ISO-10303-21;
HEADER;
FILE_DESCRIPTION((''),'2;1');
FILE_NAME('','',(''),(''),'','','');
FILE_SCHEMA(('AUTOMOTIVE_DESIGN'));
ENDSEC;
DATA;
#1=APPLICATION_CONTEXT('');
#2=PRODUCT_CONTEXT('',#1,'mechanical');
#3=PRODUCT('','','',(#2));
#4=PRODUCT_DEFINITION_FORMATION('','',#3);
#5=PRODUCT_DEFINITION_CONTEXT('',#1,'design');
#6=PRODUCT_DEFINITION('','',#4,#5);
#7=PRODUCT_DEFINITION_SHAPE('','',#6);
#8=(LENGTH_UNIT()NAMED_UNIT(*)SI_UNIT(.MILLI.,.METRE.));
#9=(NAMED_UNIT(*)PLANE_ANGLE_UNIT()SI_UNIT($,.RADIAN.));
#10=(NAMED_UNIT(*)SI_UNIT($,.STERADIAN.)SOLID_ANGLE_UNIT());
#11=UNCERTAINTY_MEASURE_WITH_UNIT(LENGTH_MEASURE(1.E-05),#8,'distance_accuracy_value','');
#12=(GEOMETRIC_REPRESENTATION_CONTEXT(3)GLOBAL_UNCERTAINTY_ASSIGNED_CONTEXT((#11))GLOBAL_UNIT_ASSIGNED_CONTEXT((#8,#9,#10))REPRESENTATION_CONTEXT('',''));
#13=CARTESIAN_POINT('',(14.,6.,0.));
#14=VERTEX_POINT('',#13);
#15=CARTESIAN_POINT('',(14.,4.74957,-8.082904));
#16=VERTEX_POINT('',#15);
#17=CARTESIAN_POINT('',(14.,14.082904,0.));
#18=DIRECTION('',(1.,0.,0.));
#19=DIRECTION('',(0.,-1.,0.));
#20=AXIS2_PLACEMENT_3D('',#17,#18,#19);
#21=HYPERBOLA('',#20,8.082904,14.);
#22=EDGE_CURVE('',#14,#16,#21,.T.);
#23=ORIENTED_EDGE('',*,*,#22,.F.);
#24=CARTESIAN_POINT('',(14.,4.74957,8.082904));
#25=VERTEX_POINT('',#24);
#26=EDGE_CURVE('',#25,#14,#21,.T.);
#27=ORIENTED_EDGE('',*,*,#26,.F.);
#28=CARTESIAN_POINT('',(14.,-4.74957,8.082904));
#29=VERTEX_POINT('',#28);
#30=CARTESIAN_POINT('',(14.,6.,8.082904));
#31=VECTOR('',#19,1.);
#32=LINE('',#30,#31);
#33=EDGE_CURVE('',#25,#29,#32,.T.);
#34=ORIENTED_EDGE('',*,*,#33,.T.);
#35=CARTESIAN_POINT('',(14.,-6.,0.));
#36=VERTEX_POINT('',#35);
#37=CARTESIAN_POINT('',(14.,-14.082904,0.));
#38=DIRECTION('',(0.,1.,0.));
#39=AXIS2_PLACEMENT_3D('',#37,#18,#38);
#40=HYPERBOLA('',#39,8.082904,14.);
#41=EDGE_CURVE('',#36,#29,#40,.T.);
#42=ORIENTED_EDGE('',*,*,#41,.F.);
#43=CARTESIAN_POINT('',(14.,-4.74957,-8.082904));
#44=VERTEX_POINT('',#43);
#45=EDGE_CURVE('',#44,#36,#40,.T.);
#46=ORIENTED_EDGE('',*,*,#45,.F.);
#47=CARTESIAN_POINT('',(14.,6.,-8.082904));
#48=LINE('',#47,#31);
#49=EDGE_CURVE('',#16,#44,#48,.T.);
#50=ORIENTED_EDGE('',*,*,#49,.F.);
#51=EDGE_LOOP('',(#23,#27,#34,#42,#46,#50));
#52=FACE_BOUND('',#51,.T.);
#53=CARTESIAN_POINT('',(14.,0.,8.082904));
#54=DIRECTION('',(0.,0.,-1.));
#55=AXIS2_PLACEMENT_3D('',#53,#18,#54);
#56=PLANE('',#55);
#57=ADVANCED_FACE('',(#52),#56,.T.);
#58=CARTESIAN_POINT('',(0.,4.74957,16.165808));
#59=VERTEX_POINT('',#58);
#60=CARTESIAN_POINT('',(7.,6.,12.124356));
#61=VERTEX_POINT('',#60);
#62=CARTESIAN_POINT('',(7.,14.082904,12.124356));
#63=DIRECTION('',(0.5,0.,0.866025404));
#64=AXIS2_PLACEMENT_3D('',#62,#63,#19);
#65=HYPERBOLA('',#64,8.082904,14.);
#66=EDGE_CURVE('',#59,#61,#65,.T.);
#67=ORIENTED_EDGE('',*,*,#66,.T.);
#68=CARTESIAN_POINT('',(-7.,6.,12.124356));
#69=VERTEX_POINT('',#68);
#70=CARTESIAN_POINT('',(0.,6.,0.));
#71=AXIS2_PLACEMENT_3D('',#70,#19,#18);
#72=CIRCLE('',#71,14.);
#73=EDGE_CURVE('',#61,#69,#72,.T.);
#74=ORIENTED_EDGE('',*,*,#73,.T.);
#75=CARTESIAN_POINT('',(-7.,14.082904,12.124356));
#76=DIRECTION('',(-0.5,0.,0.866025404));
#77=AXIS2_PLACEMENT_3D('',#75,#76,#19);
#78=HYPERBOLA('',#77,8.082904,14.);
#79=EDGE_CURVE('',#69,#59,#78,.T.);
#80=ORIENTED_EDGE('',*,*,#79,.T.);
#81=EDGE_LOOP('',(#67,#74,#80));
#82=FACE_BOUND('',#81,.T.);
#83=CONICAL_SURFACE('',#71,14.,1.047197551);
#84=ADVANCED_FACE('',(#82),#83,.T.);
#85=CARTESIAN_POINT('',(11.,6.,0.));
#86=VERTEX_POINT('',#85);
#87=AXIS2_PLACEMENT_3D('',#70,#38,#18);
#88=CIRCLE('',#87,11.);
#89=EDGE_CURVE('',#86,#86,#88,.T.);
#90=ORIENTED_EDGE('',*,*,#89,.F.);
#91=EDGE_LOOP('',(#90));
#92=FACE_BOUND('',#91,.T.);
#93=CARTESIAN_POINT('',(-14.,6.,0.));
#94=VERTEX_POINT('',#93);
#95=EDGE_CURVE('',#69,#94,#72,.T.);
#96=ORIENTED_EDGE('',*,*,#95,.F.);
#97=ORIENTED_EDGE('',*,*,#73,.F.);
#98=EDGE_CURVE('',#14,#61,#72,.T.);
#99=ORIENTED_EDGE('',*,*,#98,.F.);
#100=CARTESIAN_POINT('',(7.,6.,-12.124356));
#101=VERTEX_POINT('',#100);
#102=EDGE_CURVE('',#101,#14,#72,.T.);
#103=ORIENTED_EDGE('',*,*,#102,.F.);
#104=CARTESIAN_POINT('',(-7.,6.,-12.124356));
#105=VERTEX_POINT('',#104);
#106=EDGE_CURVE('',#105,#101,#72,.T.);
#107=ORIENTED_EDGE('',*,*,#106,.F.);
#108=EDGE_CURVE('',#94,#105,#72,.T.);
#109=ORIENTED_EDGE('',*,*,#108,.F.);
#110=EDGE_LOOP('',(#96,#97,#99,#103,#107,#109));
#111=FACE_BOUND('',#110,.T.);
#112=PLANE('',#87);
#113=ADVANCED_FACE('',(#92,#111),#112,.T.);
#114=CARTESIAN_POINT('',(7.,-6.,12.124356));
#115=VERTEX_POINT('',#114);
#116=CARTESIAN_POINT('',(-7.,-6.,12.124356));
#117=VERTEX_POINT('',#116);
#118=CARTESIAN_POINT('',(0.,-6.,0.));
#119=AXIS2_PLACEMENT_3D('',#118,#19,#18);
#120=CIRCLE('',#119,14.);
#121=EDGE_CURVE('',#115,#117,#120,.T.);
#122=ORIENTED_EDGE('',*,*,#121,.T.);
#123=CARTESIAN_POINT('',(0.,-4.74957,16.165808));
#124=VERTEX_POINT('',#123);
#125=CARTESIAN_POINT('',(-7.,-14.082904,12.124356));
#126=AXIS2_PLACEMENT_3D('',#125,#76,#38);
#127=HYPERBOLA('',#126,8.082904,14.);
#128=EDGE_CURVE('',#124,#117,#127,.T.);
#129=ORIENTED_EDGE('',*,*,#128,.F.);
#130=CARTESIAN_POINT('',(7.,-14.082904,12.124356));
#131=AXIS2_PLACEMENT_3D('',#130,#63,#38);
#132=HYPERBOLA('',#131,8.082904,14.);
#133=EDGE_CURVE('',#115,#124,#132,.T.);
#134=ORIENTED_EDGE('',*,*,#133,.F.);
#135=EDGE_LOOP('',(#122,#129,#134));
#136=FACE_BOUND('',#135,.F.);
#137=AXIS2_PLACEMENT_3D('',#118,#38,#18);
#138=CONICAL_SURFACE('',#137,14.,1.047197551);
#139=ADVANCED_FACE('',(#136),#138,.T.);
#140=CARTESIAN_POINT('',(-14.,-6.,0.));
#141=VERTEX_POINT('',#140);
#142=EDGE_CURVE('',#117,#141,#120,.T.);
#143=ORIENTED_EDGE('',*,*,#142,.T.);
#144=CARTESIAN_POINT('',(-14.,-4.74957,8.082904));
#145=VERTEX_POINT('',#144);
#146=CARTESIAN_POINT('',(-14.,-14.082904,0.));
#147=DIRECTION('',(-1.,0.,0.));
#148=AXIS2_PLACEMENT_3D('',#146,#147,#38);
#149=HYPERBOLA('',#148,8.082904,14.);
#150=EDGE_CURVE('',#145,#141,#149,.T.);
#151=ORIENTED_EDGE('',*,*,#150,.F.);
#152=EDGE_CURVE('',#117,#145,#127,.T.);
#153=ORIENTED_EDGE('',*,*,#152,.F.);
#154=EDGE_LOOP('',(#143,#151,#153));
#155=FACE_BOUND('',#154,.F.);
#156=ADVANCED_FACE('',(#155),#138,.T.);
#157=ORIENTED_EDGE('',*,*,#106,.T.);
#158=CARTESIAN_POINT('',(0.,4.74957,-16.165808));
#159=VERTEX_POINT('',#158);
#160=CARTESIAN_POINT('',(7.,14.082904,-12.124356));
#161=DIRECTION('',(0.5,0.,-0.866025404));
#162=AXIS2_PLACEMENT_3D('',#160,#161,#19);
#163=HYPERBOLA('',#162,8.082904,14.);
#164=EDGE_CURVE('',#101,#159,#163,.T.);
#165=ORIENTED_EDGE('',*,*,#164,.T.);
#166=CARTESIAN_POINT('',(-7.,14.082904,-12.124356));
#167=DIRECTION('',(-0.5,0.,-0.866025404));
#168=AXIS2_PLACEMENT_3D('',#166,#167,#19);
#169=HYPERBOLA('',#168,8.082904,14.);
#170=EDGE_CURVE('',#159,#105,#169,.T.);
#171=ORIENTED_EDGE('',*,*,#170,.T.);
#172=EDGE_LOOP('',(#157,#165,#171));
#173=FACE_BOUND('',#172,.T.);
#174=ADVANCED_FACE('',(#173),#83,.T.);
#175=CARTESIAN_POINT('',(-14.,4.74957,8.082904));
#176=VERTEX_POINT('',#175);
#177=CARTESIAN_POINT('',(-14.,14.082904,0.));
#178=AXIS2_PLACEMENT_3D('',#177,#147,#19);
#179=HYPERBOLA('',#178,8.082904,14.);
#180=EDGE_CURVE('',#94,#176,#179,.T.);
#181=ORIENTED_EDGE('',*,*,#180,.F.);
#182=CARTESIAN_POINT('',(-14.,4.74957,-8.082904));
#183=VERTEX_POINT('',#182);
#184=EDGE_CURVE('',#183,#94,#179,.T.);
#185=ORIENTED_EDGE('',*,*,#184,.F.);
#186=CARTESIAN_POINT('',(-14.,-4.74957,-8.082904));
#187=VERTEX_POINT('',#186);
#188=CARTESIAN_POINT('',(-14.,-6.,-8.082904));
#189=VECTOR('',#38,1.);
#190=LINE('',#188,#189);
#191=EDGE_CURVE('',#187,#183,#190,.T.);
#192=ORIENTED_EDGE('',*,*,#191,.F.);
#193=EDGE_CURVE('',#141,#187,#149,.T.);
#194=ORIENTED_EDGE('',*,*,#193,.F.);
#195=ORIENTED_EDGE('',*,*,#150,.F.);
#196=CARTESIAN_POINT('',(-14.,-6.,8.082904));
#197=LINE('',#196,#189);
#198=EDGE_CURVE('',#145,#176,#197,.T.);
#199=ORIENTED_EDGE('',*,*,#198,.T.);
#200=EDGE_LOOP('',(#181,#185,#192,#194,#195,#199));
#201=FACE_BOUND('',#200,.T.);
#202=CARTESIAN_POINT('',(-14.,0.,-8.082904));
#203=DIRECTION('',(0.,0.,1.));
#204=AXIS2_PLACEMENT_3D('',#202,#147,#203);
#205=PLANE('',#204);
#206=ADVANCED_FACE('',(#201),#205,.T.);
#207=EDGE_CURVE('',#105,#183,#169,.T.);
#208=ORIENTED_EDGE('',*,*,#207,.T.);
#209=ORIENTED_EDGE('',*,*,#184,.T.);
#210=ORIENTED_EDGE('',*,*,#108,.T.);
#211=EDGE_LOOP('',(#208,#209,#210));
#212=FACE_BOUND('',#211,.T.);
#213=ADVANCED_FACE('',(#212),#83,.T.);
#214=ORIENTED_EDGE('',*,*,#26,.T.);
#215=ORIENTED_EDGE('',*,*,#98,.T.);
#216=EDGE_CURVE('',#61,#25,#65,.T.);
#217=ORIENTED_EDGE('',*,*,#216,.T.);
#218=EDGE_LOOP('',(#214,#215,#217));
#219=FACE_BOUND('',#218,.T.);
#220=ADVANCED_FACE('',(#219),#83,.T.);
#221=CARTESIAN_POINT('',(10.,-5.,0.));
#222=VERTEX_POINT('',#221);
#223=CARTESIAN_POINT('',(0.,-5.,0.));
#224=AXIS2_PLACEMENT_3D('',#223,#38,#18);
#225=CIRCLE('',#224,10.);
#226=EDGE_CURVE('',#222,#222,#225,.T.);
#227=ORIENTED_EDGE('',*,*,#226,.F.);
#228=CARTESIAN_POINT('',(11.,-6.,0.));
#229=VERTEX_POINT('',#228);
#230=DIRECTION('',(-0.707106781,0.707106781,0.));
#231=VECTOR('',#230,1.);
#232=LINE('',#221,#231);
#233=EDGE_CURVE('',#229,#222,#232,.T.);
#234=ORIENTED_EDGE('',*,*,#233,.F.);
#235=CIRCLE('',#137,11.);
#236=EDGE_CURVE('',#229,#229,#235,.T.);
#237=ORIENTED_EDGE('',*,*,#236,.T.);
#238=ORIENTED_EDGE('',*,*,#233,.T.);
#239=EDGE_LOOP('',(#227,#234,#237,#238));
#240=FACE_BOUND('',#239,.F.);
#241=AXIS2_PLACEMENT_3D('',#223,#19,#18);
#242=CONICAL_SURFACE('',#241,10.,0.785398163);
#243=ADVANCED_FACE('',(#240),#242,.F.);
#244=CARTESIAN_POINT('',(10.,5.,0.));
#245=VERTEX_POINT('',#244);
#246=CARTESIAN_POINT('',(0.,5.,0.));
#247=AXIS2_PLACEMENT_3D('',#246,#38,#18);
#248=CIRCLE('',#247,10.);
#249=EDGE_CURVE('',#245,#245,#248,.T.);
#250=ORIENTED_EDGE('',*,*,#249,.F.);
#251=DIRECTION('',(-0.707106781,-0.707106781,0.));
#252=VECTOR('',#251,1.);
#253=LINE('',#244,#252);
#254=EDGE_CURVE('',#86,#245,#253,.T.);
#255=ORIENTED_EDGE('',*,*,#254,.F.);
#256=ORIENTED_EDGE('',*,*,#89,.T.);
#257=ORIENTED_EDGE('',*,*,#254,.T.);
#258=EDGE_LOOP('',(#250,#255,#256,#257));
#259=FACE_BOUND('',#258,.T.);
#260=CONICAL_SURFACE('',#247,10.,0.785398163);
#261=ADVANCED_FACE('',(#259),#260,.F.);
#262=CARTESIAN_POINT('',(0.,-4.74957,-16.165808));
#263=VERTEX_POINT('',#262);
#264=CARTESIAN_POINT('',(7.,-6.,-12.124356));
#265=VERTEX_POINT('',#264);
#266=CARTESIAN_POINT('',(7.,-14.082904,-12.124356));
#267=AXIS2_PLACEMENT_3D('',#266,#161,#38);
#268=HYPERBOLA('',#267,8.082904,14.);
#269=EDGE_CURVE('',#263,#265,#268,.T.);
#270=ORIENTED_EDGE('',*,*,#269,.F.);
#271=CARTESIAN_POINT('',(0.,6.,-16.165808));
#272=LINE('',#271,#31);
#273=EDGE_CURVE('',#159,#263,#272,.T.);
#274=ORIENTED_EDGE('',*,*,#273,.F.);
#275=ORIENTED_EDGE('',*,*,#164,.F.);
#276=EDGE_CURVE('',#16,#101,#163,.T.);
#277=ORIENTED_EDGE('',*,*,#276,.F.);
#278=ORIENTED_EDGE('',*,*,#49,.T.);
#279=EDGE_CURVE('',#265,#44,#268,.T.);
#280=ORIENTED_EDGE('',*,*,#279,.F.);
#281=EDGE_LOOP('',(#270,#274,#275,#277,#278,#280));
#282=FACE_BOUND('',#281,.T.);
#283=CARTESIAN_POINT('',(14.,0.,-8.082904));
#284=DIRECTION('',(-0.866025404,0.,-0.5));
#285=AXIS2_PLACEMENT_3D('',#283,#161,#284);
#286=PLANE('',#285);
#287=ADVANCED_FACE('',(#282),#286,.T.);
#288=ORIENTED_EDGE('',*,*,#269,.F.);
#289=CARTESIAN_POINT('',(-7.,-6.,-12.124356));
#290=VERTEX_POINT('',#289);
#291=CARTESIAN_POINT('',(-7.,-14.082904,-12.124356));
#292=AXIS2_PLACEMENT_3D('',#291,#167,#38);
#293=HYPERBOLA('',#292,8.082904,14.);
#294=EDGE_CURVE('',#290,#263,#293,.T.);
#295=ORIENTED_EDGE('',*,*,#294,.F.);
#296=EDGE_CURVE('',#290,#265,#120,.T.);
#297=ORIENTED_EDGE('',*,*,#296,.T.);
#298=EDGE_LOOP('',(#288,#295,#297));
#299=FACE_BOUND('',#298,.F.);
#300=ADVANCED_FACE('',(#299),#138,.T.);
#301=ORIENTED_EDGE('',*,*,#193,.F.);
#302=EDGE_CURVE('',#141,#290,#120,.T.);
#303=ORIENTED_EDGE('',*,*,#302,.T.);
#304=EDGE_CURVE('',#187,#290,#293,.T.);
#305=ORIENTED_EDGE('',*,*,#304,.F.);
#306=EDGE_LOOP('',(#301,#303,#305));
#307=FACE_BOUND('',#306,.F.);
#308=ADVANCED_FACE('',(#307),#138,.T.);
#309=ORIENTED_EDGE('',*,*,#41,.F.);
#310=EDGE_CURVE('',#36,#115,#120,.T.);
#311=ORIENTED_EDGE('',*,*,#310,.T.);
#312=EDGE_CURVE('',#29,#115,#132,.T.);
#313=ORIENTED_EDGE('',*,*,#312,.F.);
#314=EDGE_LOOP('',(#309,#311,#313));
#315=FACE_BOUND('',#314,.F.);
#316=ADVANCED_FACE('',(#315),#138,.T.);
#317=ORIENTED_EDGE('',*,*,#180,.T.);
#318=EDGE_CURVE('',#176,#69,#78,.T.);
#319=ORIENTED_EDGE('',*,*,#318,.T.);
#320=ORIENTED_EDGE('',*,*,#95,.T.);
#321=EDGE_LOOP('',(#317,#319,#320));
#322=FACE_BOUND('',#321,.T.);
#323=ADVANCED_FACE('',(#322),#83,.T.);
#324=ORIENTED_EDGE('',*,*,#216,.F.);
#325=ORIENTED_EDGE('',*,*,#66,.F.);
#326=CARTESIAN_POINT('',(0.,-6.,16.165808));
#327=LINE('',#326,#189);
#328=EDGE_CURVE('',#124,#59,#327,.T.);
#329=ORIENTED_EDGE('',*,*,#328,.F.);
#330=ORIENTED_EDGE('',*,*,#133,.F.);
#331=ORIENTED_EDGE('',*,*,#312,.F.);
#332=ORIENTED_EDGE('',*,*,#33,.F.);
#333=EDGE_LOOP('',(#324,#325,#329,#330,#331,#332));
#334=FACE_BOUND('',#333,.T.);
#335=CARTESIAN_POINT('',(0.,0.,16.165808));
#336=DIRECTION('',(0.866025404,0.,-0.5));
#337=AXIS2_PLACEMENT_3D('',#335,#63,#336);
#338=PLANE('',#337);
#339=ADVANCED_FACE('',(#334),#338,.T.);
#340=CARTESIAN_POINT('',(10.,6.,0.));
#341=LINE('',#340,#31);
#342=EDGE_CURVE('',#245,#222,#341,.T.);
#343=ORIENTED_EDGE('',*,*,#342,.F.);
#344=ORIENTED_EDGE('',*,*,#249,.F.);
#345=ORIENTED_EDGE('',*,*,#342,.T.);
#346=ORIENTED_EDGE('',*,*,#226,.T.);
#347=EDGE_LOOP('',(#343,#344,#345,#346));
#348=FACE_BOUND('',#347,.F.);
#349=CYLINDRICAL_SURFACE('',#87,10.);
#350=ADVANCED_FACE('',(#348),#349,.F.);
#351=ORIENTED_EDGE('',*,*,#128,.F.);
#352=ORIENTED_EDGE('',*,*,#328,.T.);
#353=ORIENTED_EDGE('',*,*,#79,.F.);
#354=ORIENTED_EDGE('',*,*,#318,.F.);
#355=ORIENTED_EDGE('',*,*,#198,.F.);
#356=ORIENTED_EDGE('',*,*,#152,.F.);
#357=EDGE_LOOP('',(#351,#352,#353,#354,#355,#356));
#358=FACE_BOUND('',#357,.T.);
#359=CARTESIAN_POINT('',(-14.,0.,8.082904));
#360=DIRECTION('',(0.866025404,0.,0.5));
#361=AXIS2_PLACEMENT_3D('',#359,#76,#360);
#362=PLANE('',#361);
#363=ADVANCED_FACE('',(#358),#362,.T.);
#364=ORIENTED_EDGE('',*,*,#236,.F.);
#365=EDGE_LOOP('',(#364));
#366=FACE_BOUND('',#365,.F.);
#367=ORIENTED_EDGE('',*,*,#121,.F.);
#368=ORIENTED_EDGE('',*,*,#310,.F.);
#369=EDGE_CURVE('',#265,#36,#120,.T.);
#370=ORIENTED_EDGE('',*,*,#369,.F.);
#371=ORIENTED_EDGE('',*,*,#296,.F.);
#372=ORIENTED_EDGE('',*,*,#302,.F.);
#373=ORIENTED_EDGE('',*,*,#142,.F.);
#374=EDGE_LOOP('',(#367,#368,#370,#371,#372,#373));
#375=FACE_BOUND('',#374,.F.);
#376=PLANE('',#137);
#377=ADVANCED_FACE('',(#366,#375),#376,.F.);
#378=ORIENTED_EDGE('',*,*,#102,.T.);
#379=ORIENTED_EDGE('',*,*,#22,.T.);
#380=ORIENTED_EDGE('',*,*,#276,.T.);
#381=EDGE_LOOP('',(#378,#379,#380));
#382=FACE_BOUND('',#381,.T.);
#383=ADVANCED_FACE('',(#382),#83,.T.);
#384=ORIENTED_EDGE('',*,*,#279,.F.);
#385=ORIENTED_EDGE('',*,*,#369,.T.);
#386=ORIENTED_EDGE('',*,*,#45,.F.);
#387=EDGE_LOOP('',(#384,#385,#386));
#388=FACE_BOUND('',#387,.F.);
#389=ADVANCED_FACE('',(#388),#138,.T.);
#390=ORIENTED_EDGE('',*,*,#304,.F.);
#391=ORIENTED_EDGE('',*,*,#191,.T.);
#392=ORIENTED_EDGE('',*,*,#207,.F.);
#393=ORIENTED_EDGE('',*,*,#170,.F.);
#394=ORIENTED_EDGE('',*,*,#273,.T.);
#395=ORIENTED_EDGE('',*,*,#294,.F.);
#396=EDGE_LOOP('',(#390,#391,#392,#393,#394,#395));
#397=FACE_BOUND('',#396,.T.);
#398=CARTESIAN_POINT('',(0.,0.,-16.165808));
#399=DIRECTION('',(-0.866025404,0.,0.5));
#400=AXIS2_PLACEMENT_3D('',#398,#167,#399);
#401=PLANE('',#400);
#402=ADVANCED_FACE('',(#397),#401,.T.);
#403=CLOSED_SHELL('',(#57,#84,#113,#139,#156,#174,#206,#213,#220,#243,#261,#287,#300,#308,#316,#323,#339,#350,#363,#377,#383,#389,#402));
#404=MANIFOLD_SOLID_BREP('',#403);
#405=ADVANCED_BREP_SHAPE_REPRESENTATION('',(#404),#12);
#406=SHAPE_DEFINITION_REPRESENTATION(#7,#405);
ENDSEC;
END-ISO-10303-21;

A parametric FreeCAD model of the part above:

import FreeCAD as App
import Part
import Sketcher
from FreeCAD import Vector
Q = App.Units.Quantity


def edges_at(feature, points):
    """Names of the edges that pass closest to the given points."""
    edges = feature.Shape.Edges
    near = lambda p: min(range(len(edges)), key=lambda i: edges[i].distToShape(Part.Vertex(*p))[0])
    return sorted({f"Edge{near(p) + 1}" for p in points})


def add_polygon(sketch, points):
    """Adds a closed chain of lines whose ends are joined by coincident constraints."""
    first, n = sketch.GeometryCount, len(points)
    for a, b in zip(points, points[1:] + points[:1]):
        sketch.addGeometry(Part.LineSegment(App.Vector(*a, 0), App.Vector(*b, 0)), False)
    for i in range(n):
        sketch.addConstraint(Sketcher.Constraint("Coincident", first + i, 2, first + (i + 1) % n, 1))

doc = App.newDocument("Part")
body = doc.addObject("PartDesign::Body", "Body")

sketch1 = doc.addObject("Sketcher::SketchObject", "Sketch")
body.addObject(sketch1)
sketch1.AttachmentSupport = (doc.XZ_Plane, [""])
sketch1.MapMode = "FlatFace"
add_polygon(sketch1, [(0, -16.165808), (-14, -8.082904), (-14, 8.082904), (0, 16.165808), (14, 8.082904), (14, -8.082904)])
sketch1.addConstraint([
    Sketcher.Constraint("Vertical", 1),
    Sketcher.Constraint("Vertical", 4),
    Sketcher.Constraint("Symmetric", 0, 2, 3, 2, -1, 1),
    Sketcher.Constraint("Symmetric", 2, 2, 5, 2, -1, 1),
    Sketcher.Constraint("PointOnObject", 2, 2, -2),
    Sketcher.Constraint("Parallel", 2, 5),
    Sketcher.Constraint("Horizontal", 1, 2, 3, 2),
    Sketcher.Constraint("Angle", 0, Q("150 deg")),
    Sketcher.Constraint("DistanceX", 0, 2, -1, 1, 14.0),
    Sketcher.Constraint("DistanceY", 1, 1, 1, 2, 16.165808),
])
pad1 = doc.addObject("PartDesign::Pad", "Pad")
body.addObject(pad1)
pad1.Profile = sketch1
pad1.Length = 12
pad1.Midplane = True

sketch2 = doc.addObject("Sketcher::SketchObject", "Sketch001")
body.addObject(sketch2)
sketch2.AttachmentSupport = (doc.XZ_Plane, [""])
sketch2.MapMode = "FlatFace"
sketch2.AttachmentOffset = App.Placement(Vector(0, 0, -6), App.Rotation())
add_polygon(sketch2, [(-40.227, -42.393), (-40.227, 42.393), (40.227, 42.393), (40.227, -42.393)])
sketch2.addGeometry(Part.Circle(Vector(0, 0, 0), Vector(0, 0, 1), 14), False)
sketch2.addConstraint([
    Sketcher.Constraint("Vertical", 0),
    Sketcher.Constraint("Horizontal", 1),
    Sketcher.Constraint("Vertical", 2),
    Sketcher.Constraint("Horizontal", 3),
    Sketcher.Constraint("Coincident", 4, 3, -1, 1),
    Sketcher.Constraint("Symmetric", 0, 2, 2, 2, -1, 1),
    Sketcher.Constraint("Diameter", 4, 28.0),
    Sketcher.Constraint("DistanceX", 1, 1, 1, 2, 80.454),
    Sketcher.Constraint("DistanceY", 0, 1, 0, 2, 84.786),
])
pocket1 = doc.addObject("PartDesign::Pocket", "Pocket")
body.addObject(pocket1)
pocket1.Profile = sketch2
pocket1.Length = 12
pocket1.Reversed = True
pocket1.TaperAngle = 60
doc.recompute()

mirrored = doc.addObject("PartDesign::Mirrored", "Mirrored")
body.addObject(mirrored)
mirrored.Originals = [pocket1]
mirrored.MirrorPlane = (doc.XZ_Plane, [""])
body.Tip = mirrored

sketch3 = doc.addObject("Sketcher::SketchObject", "Sketch002")
body.addObject(sketch3)
sketch3.AttachmentSupport = (doc.XZ_Plane, [""])
sketch3.MapMode = "FlatFace"
sketch3.AttachmentOffset = App.Placement(Vector(0, 0, -6), App.Rotation())
sketch3.addGeometry(Part.Circle(Vector(0, 0, 0), Vector(0, 0, 1), 10), False)
sketch3.addConstraint([
    Sketcher.Constraint("Coincident", 0, 3, -1, 1),
    Sketcher.Constraint("Diameter", 0, 20.0),
])
pocket2 = doc.addObject("PartDesign::Pocket", "Pocket001")
body.addObject(pocket2)
pocket2.Profile = sketch3
pocket2.Type = "ThroughAll"
pocket2.Reversed = True
doc.recompute()

chamfer = doc.addObject("PartDesign::Chamfer", "Chamfer")
body.addObject(chamfer)
chamfer.Base = (pocket2, edges_at(pocket2, [(-10, -6, 0), (-10, 6, 0)]))
chamfer.Size = 1

doc.recompute()
